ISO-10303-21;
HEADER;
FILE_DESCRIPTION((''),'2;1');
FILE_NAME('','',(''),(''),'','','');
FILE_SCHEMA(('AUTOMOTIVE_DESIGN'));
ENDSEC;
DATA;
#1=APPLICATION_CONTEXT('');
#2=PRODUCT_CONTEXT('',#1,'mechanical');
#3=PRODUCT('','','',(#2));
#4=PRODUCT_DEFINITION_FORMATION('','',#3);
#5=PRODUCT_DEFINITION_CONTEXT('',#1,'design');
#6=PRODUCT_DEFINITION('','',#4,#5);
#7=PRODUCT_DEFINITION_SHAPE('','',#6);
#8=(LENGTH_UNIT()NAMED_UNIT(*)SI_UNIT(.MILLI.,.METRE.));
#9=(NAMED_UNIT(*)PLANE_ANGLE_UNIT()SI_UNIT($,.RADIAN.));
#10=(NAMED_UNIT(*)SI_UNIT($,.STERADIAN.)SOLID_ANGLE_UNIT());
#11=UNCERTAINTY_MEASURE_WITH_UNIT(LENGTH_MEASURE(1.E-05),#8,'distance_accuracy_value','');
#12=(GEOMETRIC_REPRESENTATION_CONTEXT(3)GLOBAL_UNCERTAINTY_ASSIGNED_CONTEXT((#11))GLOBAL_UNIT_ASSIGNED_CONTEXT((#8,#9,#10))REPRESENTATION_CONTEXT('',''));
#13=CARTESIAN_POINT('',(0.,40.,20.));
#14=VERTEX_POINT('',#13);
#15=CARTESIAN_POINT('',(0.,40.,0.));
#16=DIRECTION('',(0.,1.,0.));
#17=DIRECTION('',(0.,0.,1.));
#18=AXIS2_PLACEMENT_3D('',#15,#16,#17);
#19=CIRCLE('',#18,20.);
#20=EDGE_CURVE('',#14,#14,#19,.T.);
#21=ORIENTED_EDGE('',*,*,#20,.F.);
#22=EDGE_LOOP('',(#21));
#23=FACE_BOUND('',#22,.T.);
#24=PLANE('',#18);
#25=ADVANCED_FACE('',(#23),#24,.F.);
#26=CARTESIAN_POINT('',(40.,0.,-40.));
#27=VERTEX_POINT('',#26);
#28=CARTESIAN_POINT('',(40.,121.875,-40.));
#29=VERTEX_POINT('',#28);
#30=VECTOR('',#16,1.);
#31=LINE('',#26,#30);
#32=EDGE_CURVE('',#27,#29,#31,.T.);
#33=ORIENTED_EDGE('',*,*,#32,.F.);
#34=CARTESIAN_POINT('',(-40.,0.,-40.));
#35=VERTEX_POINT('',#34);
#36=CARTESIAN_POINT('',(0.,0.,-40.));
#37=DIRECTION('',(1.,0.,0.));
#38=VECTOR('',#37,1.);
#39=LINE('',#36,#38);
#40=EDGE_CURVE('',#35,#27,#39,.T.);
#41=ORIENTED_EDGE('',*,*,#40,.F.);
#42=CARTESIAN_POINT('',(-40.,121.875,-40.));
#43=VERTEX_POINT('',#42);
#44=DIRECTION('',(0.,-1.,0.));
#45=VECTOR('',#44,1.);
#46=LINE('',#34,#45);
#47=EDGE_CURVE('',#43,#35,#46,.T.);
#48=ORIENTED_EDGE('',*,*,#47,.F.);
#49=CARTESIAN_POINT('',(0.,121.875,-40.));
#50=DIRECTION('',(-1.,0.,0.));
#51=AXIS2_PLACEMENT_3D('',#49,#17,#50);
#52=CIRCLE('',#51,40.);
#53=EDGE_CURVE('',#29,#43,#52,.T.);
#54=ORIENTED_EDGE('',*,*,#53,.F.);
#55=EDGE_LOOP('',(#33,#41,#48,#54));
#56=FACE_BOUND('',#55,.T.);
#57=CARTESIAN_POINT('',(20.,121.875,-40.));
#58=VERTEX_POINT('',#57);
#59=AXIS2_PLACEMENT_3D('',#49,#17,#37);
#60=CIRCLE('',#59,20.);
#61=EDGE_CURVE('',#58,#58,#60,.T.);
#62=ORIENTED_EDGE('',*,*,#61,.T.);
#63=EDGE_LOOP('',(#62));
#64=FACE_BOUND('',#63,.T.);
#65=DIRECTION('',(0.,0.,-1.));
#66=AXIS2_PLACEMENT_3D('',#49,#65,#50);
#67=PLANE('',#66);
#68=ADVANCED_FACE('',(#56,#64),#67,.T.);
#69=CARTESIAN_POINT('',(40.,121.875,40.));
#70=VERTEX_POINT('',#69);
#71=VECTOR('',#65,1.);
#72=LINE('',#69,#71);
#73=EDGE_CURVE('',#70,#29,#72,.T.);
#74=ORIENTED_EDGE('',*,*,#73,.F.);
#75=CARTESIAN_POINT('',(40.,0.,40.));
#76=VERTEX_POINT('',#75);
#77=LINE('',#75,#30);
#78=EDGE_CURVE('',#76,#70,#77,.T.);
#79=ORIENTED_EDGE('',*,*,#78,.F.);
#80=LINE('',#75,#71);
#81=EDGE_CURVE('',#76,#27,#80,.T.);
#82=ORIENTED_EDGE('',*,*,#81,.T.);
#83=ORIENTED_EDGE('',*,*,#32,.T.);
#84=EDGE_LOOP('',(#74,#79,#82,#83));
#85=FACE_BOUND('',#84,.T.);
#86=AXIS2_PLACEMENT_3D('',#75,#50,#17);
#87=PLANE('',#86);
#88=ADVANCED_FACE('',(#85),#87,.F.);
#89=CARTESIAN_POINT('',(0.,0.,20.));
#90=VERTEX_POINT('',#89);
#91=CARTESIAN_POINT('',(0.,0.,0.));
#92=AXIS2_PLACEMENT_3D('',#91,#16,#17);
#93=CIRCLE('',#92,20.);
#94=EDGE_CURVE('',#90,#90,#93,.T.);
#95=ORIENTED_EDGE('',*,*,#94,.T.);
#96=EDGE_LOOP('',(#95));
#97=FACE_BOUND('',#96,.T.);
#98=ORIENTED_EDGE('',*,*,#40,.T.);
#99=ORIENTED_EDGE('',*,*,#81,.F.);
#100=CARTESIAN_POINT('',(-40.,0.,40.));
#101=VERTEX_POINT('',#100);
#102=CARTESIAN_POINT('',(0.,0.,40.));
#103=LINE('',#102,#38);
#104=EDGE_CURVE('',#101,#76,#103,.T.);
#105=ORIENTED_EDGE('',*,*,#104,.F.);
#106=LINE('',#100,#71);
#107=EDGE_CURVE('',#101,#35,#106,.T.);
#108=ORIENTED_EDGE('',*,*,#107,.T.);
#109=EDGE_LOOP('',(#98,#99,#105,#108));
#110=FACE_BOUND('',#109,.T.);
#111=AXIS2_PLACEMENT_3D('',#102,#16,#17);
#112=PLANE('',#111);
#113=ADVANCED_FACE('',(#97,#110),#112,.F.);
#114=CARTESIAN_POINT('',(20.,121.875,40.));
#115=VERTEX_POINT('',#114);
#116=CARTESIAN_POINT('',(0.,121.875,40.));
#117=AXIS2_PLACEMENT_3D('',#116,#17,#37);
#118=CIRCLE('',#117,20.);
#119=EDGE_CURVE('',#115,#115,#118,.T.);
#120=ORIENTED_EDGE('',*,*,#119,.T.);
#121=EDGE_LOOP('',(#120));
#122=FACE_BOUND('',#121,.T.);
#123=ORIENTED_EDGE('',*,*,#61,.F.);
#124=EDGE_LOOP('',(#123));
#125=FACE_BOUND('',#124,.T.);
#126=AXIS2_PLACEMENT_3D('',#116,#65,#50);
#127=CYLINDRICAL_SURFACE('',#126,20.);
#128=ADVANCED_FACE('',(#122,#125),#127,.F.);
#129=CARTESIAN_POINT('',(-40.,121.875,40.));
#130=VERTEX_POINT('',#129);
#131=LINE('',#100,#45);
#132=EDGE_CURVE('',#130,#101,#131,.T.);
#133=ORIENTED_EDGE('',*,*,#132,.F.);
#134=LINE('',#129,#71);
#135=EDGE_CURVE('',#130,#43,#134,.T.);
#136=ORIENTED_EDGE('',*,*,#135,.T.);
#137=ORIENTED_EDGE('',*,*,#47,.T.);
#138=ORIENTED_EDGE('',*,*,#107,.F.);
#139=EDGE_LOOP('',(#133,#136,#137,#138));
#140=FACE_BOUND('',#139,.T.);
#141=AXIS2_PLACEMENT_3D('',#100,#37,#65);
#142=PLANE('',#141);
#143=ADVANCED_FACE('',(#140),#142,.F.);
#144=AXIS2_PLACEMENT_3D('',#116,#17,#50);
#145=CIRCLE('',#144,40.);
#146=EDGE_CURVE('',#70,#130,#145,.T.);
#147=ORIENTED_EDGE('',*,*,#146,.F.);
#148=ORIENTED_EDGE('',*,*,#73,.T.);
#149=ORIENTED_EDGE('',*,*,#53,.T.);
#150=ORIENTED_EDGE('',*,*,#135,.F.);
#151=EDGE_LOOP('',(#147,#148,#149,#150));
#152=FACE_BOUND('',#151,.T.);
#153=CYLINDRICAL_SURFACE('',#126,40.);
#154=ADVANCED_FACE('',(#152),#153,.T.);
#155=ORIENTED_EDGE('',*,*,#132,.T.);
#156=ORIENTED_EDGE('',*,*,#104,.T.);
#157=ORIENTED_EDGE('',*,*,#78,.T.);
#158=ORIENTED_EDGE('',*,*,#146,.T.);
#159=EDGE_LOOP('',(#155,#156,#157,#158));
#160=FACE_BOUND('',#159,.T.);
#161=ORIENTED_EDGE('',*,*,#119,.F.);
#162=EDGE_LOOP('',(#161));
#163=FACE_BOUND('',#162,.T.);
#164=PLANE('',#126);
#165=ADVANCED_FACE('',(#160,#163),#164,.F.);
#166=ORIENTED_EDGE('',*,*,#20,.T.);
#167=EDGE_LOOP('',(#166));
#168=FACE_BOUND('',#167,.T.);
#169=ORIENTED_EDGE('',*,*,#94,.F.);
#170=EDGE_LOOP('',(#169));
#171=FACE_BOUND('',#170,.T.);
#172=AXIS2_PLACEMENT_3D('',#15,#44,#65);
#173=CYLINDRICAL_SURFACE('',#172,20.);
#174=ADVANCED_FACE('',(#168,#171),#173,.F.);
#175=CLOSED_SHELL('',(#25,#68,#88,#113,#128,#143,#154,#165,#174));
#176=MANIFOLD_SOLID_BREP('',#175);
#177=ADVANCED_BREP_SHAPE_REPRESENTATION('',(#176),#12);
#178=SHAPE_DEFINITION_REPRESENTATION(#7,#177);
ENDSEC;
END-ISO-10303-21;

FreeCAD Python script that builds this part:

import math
import FreeCAD as App
import Part
import Sketcher
Q = App.Units.Quantity

doc = App.newDocument("Part")
body = doc.addObject("PartDesign::Body", "Body")

# Sketch on XY plane
sketch1 = body.newObject("Sketcher::SketchObject", "Sketch")
sketch1.AttachmentSupport = (doc.getObject("XY_Plane"), [""])
sketch1.MapMode = "FlatFace"
sketch1.addGeometry([
    Part.LineSegment(App.Vector(-40, 122, 0), App.Vector(-40, 0, 0)),  # 0
    Part.LineSegment(App.Vector(-40, 0, 0), App.Vector(40, 0, 0)),  # 1
    Part.LineSegment(App.Vector(40, 0, 0), App.Vector(40, 122, 0)),  # 2
    Part.ArcOfCircle(Part.Circle(App.Vector(0, 122, 0), App.Vector(0, 0, 1), 40), math.radians(0), math.radians(180)),  # 3
    Part.Circle(App.Vector(0, 122, 0), App.Vector(0, 0, 1), 20),  # 4
], False)
sketch1.addConstraint([
    Sketcher.Constraint("Coincident", 0, 2, 1, 1),
    Sketcher.Constraint("Coincident", 1, 2, 2, 1),
    Sketcher.Constraint("Tangent", 2, 2, 3, 1),
    Sketcher.Constraint("Tangent", 3, 2, 0, 1),
    Sketcher.Constraint("Vertical", 0),
    Sketcher.Constraint("Horizontal", 1),
    Sketcher.Constraint("Vertical", 2),
    Sketcher.Constraint("Coincident", 4, 3, 3, 3),
    Sketcher.Constraint("Symmetric", 0, 2, 1, 2, -1, 1),
    Sketcher.Constraint("Diameter", 4, Q("40 mm")),
    Sketcher.Constraint("Radius", 3, Q("40 mm")),
    Sketcher.Constraint("DistanceY", 0, 2, 0, 1, Q("121.875 mm")),
])
pad1 = body.newObject("PartDesign::Pad", "Pad")
pad1.Profile = sketch1
pad1.Length = 80
pad1.Midplane = True

# Sketch on XZ plane
sketch2 = body.newObject("Sketcher::SketchObject", "Sketch001")
sketch2.AttachmentSupport = (doc.getObject("XZ_Plane"), [""])
sketch2.MapMode = "FlatFace"
sketch2.addGeometry(Part.Circle(App.Vector(0, 0, 0), App.Vector(0, 0, 1), 20), False)
sketch2.addConstraint([
    Sketcher.Constraint("Coincident", 0, 3, -1, 1),
    Sketcher.Constraint("Diameter", 0, Q("40 mm")),
])
pocket1 = body.newObject("PartDesign::Pocket", "Pocket")
pocket1.Profile = sketch2
pocket1.Length = 40

doc.recompute()
